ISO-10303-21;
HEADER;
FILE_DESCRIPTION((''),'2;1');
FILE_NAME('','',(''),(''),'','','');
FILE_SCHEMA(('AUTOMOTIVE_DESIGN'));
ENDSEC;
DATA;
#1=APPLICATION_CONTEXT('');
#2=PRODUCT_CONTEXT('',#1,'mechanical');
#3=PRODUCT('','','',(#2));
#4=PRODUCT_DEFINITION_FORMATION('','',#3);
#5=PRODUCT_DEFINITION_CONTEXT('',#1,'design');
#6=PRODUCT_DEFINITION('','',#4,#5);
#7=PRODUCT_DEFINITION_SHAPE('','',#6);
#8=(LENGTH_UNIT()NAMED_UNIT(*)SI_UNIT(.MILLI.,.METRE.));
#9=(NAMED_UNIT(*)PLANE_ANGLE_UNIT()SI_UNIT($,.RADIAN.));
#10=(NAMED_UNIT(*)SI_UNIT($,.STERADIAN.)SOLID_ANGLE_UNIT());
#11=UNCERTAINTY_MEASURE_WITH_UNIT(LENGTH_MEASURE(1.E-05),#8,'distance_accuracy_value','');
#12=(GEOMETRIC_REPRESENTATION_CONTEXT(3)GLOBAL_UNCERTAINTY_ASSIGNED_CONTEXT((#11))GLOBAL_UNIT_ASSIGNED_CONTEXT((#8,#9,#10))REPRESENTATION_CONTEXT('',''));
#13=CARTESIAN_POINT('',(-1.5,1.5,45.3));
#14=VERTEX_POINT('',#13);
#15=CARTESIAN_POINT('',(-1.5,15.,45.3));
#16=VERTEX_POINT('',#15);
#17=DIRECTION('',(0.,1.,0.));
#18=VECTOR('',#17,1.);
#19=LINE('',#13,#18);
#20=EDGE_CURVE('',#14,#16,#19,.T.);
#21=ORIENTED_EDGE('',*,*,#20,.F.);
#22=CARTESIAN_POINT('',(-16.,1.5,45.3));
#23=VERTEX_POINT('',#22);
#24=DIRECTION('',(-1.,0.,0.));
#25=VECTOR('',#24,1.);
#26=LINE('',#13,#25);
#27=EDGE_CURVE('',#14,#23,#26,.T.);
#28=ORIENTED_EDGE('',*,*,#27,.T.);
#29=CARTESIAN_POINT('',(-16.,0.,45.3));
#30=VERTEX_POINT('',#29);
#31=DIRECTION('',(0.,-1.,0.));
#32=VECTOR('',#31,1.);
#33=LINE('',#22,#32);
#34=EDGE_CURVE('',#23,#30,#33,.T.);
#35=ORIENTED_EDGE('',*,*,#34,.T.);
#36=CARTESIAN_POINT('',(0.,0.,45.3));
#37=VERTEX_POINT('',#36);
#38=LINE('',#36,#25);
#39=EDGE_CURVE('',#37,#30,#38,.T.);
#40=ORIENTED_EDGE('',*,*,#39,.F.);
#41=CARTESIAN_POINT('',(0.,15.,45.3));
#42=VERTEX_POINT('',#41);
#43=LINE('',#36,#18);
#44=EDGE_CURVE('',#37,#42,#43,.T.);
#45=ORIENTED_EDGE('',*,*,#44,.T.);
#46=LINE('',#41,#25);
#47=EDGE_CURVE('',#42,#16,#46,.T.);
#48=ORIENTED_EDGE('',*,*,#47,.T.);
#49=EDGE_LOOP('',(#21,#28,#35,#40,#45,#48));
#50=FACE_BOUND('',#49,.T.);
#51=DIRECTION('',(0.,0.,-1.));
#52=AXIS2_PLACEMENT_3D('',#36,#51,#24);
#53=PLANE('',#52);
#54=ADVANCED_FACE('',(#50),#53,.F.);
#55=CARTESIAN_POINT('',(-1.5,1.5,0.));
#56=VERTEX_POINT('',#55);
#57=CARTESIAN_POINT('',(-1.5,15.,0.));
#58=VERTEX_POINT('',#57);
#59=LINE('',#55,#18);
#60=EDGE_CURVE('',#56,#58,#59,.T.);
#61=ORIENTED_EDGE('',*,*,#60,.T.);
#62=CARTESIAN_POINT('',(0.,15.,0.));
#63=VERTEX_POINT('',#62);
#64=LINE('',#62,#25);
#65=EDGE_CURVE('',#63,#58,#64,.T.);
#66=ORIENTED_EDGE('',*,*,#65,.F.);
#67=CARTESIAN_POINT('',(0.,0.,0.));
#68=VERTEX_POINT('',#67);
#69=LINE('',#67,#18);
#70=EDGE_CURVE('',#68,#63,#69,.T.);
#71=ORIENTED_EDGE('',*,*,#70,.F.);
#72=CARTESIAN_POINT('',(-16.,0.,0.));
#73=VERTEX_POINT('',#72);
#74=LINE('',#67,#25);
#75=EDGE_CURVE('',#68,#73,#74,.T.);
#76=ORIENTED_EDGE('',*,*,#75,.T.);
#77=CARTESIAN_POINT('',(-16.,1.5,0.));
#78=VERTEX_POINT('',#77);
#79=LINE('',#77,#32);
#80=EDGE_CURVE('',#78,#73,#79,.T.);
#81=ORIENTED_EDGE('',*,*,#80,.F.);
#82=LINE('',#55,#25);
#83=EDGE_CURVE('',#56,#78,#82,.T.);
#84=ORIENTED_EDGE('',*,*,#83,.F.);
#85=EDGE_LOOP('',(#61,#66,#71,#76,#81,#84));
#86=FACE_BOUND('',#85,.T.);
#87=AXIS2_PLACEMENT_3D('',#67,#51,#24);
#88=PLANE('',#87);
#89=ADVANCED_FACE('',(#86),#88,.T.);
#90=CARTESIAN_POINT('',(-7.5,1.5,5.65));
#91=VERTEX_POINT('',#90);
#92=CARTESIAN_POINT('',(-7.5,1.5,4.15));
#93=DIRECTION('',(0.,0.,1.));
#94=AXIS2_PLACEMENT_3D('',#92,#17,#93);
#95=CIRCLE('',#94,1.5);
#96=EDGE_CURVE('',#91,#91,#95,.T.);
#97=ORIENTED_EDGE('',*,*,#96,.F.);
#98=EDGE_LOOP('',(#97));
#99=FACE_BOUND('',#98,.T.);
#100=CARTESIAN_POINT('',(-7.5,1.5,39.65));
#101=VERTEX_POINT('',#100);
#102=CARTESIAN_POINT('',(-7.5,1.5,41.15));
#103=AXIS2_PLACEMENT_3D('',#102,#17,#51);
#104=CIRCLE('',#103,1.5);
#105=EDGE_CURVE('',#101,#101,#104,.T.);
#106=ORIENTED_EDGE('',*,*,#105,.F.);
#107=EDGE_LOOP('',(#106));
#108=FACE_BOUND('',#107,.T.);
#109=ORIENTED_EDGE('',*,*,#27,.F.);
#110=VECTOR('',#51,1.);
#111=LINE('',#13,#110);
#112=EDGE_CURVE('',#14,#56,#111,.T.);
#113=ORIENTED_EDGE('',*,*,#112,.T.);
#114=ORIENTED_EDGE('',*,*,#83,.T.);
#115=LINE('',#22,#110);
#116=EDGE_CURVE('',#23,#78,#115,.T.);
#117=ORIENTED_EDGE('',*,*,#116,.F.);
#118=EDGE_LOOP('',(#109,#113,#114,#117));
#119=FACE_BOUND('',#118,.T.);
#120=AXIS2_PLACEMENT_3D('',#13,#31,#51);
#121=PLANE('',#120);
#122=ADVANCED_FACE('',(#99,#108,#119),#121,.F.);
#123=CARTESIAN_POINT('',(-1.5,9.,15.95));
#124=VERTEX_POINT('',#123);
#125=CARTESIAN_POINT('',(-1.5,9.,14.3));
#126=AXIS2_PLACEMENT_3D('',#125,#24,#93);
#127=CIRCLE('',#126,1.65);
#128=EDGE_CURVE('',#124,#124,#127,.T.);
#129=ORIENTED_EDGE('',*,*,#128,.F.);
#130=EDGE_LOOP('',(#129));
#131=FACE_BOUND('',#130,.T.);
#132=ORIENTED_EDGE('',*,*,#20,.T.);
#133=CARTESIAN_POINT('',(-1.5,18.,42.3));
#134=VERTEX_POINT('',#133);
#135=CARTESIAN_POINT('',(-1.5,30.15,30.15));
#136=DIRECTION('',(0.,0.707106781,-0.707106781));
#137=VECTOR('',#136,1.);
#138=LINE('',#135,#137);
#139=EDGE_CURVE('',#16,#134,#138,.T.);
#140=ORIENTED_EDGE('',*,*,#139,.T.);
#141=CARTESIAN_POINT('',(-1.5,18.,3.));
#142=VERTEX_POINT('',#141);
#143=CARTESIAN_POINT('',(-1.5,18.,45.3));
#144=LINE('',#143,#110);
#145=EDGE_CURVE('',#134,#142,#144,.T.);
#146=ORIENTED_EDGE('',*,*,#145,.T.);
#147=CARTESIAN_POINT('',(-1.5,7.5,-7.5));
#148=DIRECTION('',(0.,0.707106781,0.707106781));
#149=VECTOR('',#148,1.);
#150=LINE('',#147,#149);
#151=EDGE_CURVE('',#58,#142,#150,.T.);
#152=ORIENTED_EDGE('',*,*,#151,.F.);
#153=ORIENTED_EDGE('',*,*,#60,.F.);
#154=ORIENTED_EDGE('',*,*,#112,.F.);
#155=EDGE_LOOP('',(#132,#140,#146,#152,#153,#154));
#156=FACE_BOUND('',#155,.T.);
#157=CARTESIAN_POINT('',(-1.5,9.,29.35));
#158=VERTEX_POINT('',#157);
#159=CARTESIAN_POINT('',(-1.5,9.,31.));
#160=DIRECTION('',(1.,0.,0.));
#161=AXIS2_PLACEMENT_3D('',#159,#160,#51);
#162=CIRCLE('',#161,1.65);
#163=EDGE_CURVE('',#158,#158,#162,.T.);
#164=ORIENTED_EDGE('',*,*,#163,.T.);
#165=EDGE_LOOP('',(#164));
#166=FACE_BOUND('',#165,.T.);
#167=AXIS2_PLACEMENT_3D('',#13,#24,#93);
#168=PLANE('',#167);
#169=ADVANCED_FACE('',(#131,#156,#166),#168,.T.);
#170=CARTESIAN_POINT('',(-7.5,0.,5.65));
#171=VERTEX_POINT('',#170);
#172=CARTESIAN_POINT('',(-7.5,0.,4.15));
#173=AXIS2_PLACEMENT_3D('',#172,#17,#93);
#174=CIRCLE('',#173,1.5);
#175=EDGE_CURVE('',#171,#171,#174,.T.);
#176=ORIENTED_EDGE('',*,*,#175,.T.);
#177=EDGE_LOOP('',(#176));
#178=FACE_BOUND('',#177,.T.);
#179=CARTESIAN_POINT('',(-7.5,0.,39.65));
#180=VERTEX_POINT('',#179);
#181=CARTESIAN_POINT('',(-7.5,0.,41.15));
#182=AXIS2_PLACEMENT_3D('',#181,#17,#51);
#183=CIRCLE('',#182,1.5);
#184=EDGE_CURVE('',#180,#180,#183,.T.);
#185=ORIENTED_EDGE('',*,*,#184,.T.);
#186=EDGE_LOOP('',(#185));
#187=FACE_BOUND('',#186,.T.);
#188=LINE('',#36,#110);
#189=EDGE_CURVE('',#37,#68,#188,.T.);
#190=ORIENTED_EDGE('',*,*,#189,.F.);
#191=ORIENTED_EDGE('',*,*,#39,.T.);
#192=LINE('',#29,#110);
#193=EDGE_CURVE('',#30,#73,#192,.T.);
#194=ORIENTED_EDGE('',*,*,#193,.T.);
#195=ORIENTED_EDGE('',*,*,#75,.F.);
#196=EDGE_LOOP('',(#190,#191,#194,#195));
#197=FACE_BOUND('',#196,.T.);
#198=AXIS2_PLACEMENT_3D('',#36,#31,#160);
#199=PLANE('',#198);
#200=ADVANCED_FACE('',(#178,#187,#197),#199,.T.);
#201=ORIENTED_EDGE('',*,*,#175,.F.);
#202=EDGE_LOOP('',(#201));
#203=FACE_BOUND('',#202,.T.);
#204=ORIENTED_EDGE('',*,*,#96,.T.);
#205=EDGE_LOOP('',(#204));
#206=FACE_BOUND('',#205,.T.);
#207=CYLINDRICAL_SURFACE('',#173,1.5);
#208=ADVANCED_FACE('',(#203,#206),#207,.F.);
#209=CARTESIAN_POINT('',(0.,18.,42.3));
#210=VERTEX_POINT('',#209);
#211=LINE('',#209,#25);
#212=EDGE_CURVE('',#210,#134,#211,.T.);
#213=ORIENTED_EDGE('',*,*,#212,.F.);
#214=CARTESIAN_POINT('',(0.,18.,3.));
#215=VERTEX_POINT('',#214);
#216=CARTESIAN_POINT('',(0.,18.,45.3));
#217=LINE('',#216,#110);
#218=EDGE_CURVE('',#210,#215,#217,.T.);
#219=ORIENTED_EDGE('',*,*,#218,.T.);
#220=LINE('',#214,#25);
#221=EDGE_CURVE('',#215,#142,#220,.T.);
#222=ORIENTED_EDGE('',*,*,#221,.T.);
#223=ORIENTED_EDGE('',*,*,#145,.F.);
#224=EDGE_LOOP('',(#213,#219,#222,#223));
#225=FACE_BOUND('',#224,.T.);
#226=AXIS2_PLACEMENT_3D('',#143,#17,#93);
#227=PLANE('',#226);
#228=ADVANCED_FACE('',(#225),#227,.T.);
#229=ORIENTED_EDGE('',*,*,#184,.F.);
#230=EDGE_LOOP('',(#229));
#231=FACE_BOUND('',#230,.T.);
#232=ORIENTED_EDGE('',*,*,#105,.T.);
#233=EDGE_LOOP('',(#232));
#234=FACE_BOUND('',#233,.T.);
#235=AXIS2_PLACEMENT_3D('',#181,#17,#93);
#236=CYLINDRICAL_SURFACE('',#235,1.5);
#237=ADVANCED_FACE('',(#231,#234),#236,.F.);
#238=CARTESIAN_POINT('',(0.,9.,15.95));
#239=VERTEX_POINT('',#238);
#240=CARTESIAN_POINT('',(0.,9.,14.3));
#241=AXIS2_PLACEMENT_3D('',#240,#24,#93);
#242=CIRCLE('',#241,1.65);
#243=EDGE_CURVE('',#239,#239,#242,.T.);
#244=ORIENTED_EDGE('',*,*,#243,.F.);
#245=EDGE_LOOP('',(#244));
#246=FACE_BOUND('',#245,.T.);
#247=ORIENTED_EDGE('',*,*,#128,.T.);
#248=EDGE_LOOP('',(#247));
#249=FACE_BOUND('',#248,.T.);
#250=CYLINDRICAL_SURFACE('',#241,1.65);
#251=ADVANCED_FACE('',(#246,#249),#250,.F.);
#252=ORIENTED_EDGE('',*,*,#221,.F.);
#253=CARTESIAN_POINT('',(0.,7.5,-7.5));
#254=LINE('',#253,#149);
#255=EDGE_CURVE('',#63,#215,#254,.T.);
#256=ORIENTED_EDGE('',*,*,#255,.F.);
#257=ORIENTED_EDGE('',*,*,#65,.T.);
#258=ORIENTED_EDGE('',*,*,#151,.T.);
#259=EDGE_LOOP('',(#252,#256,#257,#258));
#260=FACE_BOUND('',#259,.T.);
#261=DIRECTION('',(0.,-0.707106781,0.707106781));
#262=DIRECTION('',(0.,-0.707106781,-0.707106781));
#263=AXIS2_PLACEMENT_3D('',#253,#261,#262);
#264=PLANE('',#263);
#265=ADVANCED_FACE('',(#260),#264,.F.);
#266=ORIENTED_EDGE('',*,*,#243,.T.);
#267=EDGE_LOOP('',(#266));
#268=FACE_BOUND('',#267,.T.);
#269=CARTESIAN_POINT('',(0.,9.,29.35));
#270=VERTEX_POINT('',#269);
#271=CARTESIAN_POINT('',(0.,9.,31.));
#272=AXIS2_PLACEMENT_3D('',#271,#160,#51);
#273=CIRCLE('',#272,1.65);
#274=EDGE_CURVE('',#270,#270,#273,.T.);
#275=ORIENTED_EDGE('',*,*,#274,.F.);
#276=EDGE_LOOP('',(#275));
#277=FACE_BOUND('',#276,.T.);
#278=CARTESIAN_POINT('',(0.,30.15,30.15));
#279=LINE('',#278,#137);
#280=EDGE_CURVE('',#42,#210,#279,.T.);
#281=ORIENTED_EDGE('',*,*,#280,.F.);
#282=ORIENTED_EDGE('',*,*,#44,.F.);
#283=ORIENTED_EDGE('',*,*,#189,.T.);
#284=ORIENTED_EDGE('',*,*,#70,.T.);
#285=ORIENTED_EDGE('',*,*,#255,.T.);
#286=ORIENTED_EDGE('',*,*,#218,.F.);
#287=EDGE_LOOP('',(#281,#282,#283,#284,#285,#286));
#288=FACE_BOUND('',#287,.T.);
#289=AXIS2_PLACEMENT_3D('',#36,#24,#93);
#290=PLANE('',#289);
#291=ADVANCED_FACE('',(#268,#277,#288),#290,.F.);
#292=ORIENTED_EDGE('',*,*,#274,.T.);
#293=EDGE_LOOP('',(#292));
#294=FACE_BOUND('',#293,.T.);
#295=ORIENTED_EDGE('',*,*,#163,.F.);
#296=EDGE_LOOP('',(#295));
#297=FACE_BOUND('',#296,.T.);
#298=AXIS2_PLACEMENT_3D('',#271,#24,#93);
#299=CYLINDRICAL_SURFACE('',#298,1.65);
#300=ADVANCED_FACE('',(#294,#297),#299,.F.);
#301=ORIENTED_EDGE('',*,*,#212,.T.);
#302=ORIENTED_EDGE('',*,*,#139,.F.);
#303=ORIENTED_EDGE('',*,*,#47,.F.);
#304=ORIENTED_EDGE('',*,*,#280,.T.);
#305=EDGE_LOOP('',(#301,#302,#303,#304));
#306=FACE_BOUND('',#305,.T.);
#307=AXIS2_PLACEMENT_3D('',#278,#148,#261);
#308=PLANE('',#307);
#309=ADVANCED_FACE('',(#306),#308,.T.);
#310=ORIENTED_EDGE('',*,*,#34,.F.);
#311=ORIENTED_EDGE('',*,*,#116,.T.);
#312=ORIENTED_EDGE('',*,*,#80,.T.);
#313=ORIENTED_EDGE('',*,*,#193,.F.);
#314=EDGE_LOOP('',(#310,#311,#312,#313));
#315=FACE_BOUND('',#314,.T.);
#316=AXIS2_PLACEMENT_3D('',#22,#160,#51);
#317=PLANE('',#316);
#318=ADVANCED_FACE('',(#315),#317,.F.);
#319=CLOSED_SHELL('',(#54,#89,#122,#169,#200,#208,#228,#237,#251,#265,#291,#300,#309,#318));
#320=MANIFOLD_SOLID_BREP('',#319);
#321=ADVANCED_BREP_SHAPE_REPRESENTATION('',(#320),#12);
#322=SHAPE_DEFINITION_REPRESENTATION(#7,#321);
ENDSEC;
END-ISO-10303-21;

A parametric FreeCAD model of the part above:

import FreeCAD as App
import Part
import Sketcher
from FreeCAD import Vector

doc = App.newDocument("Part")
body = doc.addObject("PartDesign::Body", "Body")

sketch1 = body.newObject("Sketcher::SketchObject", "Sketch")
sketch1.AttachmentSupport = (doc.getObject("XY_Plane"), [""])
sketch1.MapMode = "FlatFace"
sketch1.addGeometry(Part.LineSegment(Vector(0, 0, 0), Vector(0, 18, 0)), False)
sketch1.addGeometry(Part.LineSegment(Vector(0, 18, 0), Vector(-1.5, 18, 0)), False)
sketch1.addGeometry(Part.LineSegment(Vector(-1.5, 18, 0), Vector(-1.5, 1.5, 0)), False)
sketch1.addGeometry(Part.LineSegment(Vector(-1.5, 1.5, 0), Vector(-16, 1.5, 0)), False)
sketch1.addGeometry(Part.LineSegment(Vector(-16, 1.5, 0), Vector(-16, 0, 0)), False)
sketch1.addGeometry(Part.LineSegment(Vector(-16, 0, 0), Vector(0, 0, 0)), False)
sketch1.addConstraint(Sketcher.Constraint("Coincident", 0, 2, 1, 1))
sketch1.addConstraint(Sketcher.Constraint("Coincident", 1, 2, 2, 1))
sketch1.addConstraint(Sketcher.Constraint("Coincident", 2, 2, 3, 1))
sketch1.addConstraint(Sketcher.Constraint("Coincident", 3, 2, 4, 1))
sketch1.addConstraint(Sketcher.Constraint("Coincident", 4, 2, 5, 1))
sketch1.addConstraint(Sketcher.Constraint("Coincident", 5, 2, 0, 1))
sketch1.addConstraint(Sketcher.Constraint("Vertical", 0))
sketch1.addConstraint(Sketcher.Constraint("Horizontal", 1))
sketch1.addConstraint(Sketcher.Constraint("Vertical", 2))
sketch1.addConstraint(Sketcher.Constraint("Horizontal", 3))
sketch1.addConstraint(Sketcher.Constraint("Vertical", 4))
sketch1.addConstraint(Sketcher.Constraint("Horizontal", 5))
sketch1.addConstraint(Sketcher.Constraint("Coincident", 5, 2, -1, 1))
sketch1.addConstraint(Sketcher.Constraint("Equal", 1, 4))
sketch1.addConstraint(Sketcher.Constraint("DistanceX", 5, 1, 5, 2, 16.0))
sketch1.addConstraint(Sketcher.Constraint("DistanceY", 0, 1, 0, 2, 18.0))
sketch1.addConstraint(Sketcher.Constraint("DistanceX", 1, 2, 1, 1, 1.5))
pad1 = body.newObject("PartDesign::Pad", "Pad")
pad1.Profile = sketch1
pad1.Length = 45.3

sketch2 = body.newObject("Sketcher::SketchObject", "Sketch001")
sketch2.AttachmentSupport = (doc.getObject("YZ_Plane"), [""])
sketch2.MapMode = "FlatFace"
sketch2.AttachmentOffset = App.Placement(Vector(0, 0, -1.5), App.Rotation())
sketch2.addGeometry(Part.LineSegment(Vector(15, 0, 0), Vector(18, 3, 0)), False)
sketch2.addGeometry(Part.LineSegment(Vector(18, 3, 0), Vector(18, 0, 0)), False)
sketch2.addGeometry(Part.LineSegment(Vector(18, 0, 0), Vector(15, 0, 0)), False)
sketch2.addGeometry(Part.LineSegment(Vector(18, 42.3, 0), Vector(15, 45.3, 0)), False)
sketch2.addGeometry(Part.LineSegment(Vector(15, 45.3, 0), Vector(18, 45.3, 0)), False)
sketch2.addGeometry(Part.LineSegment(Vector(18, 45.3, 0), Vector(18, 42.3, 0)), False)
sketch2.addGeometry(Part.Circle(Vector(9, 14.3, 0), Vector(0, 0, 1), 1.6), False)
sketch2.addGeometry(Part.Circle(Vector(9, 31, 0), Vector(0, 0, 1), 1.6), False)
sketch2.addConstraint(Sketcher.Constraint("Coincident", 0, 2, 1, 1))
sketch2.addConstraint(Sketcher.Constraint("Coincident", 1, 2, 2, 1))
sketch2.addConstraint(Sketcher.Constraint("Coincident", 2, 2, 0, 1))
sketch2.addConstraint(Sketcher.Constraint("Coincident", 3, 2, 4, 1))
sketch2.addConstraint(Sketcher.Constraint("Coincident", 4, 2, 5, 1))
sketch2.addConstraint(Sketcher.Constraint("Coincident", 5, 2, 3, 1))
sketch2.addConstraint(Sketcher.Constraint("Vertical", 1))
sketch2.addConstraint(Sketcher.Constraint("Horizontal", 2))
sketch2.addConstraint(Sketcher.Constraint("Horizontal", 4))
sketch2.addConstraint(Sketcher.Constraint("Vertical", 5))
sketch2.addConstraint(Sketcher.Constraint("Equal", 6, 7))
sketch2.addConstraint(Sketcher.Constraint("PointOnObject", 1, 2, -1))
sketch2.addConstraint(Sketcher.Constraint("Perpendicular", 0, 3))
sketch2.addConstraint(Sketcher.Constraint("Vertical", 6, 3, 7, 3))
sketch2.addConstraint(Sketcher.Constraint("Vertical", 2, 2, 3, 2))
sketch2.addConstraint(Sketcher.Constraint("Vertical", 1, 2, 4, 2))
sketch2.addConstraint(Sketcher.Constraint("Equal", 4, 1))
sketch2.addConstraint(Sketcher.Constraint("Diameter", 6, 3.3))
sketch2.addConstraint(Sketcher.Constraint("DistanceX", 2, 2, 2, 1, 3.0))
sketch2.addConstraint(Sketcher.Constraint("DistanceX", -1, 1, 6, 3, 9.0))
sketch2.addConstraint(Sketcher.Constraint("DistanceY", -1, 1, 7, 3, 31.0))
sketch2.addConstraint(Sketcher.Constraint("DistanceX", -1, 1, 0, 2, 18.0))
sketch2.addConstraint(Sketcher.Constraint("DistanceY", 6, 3, 3, 2, 31.0))
sketch2.addConstraint(Sketcher.Constraint("DistanceY", -1, 1, 6, 3, 14.3))
pocket1 = body.newObject("PartDesign::Pocket", "Pocket")
pocket1.Profile = sketch2
pocket1.Type = "ThroughAll"
pocket1.Reversed = True

sketch3 = body.newObject("Sketcher::SketchObject", "Sketch002")
sketch3.AttachmentSupport = (doc.getObject("XZ_Plane"), [""])
sketch3.MapMode = "FlatFace"
sketch3.AttachmentOffset = App.Placement(Vector(0, 0, -1.5), App.Rotation())
sketch3.addGeometry(Part.Circle(Vector(-7.5, 4.2, 0), Vector(0, 0, 1), 1.5), False)
sketch3.addGeometry(Part.Circle(Vector(-7.5, 41.1, 0), Vector(0, 0, 1), 1.5), False)
sketch3.addConstraint(Sketcher.Constraint("Equal", 0, 1))
sketch3.addConstraint(Sketcher.Constraint("Vertical", 0, 3, 1, 3))
sketch3.addConstraint(Sketcher.Constraint("Diameter", 0, 3.0))
sketch3.addConstraint(Sketcher.Constraint("DistanceY", 0, 3, 1, 3, 37.0))
sketch3.addConstraint(Sketcher.Constraint("DistanceX", 0, 3, -1, 1, 7.5))
sketch3.addConstraint(Sketcher.Constraint("DistanceY", -1, 1, 0, 3, 4.15))
pocket2 = body.newObject("PartDesign::Pocket", "Pocket001")
pocket2.Profile = sketch3
pocket2.Type = "ThroughAll"
pocket2.Reversed = True

doc.recompute()
